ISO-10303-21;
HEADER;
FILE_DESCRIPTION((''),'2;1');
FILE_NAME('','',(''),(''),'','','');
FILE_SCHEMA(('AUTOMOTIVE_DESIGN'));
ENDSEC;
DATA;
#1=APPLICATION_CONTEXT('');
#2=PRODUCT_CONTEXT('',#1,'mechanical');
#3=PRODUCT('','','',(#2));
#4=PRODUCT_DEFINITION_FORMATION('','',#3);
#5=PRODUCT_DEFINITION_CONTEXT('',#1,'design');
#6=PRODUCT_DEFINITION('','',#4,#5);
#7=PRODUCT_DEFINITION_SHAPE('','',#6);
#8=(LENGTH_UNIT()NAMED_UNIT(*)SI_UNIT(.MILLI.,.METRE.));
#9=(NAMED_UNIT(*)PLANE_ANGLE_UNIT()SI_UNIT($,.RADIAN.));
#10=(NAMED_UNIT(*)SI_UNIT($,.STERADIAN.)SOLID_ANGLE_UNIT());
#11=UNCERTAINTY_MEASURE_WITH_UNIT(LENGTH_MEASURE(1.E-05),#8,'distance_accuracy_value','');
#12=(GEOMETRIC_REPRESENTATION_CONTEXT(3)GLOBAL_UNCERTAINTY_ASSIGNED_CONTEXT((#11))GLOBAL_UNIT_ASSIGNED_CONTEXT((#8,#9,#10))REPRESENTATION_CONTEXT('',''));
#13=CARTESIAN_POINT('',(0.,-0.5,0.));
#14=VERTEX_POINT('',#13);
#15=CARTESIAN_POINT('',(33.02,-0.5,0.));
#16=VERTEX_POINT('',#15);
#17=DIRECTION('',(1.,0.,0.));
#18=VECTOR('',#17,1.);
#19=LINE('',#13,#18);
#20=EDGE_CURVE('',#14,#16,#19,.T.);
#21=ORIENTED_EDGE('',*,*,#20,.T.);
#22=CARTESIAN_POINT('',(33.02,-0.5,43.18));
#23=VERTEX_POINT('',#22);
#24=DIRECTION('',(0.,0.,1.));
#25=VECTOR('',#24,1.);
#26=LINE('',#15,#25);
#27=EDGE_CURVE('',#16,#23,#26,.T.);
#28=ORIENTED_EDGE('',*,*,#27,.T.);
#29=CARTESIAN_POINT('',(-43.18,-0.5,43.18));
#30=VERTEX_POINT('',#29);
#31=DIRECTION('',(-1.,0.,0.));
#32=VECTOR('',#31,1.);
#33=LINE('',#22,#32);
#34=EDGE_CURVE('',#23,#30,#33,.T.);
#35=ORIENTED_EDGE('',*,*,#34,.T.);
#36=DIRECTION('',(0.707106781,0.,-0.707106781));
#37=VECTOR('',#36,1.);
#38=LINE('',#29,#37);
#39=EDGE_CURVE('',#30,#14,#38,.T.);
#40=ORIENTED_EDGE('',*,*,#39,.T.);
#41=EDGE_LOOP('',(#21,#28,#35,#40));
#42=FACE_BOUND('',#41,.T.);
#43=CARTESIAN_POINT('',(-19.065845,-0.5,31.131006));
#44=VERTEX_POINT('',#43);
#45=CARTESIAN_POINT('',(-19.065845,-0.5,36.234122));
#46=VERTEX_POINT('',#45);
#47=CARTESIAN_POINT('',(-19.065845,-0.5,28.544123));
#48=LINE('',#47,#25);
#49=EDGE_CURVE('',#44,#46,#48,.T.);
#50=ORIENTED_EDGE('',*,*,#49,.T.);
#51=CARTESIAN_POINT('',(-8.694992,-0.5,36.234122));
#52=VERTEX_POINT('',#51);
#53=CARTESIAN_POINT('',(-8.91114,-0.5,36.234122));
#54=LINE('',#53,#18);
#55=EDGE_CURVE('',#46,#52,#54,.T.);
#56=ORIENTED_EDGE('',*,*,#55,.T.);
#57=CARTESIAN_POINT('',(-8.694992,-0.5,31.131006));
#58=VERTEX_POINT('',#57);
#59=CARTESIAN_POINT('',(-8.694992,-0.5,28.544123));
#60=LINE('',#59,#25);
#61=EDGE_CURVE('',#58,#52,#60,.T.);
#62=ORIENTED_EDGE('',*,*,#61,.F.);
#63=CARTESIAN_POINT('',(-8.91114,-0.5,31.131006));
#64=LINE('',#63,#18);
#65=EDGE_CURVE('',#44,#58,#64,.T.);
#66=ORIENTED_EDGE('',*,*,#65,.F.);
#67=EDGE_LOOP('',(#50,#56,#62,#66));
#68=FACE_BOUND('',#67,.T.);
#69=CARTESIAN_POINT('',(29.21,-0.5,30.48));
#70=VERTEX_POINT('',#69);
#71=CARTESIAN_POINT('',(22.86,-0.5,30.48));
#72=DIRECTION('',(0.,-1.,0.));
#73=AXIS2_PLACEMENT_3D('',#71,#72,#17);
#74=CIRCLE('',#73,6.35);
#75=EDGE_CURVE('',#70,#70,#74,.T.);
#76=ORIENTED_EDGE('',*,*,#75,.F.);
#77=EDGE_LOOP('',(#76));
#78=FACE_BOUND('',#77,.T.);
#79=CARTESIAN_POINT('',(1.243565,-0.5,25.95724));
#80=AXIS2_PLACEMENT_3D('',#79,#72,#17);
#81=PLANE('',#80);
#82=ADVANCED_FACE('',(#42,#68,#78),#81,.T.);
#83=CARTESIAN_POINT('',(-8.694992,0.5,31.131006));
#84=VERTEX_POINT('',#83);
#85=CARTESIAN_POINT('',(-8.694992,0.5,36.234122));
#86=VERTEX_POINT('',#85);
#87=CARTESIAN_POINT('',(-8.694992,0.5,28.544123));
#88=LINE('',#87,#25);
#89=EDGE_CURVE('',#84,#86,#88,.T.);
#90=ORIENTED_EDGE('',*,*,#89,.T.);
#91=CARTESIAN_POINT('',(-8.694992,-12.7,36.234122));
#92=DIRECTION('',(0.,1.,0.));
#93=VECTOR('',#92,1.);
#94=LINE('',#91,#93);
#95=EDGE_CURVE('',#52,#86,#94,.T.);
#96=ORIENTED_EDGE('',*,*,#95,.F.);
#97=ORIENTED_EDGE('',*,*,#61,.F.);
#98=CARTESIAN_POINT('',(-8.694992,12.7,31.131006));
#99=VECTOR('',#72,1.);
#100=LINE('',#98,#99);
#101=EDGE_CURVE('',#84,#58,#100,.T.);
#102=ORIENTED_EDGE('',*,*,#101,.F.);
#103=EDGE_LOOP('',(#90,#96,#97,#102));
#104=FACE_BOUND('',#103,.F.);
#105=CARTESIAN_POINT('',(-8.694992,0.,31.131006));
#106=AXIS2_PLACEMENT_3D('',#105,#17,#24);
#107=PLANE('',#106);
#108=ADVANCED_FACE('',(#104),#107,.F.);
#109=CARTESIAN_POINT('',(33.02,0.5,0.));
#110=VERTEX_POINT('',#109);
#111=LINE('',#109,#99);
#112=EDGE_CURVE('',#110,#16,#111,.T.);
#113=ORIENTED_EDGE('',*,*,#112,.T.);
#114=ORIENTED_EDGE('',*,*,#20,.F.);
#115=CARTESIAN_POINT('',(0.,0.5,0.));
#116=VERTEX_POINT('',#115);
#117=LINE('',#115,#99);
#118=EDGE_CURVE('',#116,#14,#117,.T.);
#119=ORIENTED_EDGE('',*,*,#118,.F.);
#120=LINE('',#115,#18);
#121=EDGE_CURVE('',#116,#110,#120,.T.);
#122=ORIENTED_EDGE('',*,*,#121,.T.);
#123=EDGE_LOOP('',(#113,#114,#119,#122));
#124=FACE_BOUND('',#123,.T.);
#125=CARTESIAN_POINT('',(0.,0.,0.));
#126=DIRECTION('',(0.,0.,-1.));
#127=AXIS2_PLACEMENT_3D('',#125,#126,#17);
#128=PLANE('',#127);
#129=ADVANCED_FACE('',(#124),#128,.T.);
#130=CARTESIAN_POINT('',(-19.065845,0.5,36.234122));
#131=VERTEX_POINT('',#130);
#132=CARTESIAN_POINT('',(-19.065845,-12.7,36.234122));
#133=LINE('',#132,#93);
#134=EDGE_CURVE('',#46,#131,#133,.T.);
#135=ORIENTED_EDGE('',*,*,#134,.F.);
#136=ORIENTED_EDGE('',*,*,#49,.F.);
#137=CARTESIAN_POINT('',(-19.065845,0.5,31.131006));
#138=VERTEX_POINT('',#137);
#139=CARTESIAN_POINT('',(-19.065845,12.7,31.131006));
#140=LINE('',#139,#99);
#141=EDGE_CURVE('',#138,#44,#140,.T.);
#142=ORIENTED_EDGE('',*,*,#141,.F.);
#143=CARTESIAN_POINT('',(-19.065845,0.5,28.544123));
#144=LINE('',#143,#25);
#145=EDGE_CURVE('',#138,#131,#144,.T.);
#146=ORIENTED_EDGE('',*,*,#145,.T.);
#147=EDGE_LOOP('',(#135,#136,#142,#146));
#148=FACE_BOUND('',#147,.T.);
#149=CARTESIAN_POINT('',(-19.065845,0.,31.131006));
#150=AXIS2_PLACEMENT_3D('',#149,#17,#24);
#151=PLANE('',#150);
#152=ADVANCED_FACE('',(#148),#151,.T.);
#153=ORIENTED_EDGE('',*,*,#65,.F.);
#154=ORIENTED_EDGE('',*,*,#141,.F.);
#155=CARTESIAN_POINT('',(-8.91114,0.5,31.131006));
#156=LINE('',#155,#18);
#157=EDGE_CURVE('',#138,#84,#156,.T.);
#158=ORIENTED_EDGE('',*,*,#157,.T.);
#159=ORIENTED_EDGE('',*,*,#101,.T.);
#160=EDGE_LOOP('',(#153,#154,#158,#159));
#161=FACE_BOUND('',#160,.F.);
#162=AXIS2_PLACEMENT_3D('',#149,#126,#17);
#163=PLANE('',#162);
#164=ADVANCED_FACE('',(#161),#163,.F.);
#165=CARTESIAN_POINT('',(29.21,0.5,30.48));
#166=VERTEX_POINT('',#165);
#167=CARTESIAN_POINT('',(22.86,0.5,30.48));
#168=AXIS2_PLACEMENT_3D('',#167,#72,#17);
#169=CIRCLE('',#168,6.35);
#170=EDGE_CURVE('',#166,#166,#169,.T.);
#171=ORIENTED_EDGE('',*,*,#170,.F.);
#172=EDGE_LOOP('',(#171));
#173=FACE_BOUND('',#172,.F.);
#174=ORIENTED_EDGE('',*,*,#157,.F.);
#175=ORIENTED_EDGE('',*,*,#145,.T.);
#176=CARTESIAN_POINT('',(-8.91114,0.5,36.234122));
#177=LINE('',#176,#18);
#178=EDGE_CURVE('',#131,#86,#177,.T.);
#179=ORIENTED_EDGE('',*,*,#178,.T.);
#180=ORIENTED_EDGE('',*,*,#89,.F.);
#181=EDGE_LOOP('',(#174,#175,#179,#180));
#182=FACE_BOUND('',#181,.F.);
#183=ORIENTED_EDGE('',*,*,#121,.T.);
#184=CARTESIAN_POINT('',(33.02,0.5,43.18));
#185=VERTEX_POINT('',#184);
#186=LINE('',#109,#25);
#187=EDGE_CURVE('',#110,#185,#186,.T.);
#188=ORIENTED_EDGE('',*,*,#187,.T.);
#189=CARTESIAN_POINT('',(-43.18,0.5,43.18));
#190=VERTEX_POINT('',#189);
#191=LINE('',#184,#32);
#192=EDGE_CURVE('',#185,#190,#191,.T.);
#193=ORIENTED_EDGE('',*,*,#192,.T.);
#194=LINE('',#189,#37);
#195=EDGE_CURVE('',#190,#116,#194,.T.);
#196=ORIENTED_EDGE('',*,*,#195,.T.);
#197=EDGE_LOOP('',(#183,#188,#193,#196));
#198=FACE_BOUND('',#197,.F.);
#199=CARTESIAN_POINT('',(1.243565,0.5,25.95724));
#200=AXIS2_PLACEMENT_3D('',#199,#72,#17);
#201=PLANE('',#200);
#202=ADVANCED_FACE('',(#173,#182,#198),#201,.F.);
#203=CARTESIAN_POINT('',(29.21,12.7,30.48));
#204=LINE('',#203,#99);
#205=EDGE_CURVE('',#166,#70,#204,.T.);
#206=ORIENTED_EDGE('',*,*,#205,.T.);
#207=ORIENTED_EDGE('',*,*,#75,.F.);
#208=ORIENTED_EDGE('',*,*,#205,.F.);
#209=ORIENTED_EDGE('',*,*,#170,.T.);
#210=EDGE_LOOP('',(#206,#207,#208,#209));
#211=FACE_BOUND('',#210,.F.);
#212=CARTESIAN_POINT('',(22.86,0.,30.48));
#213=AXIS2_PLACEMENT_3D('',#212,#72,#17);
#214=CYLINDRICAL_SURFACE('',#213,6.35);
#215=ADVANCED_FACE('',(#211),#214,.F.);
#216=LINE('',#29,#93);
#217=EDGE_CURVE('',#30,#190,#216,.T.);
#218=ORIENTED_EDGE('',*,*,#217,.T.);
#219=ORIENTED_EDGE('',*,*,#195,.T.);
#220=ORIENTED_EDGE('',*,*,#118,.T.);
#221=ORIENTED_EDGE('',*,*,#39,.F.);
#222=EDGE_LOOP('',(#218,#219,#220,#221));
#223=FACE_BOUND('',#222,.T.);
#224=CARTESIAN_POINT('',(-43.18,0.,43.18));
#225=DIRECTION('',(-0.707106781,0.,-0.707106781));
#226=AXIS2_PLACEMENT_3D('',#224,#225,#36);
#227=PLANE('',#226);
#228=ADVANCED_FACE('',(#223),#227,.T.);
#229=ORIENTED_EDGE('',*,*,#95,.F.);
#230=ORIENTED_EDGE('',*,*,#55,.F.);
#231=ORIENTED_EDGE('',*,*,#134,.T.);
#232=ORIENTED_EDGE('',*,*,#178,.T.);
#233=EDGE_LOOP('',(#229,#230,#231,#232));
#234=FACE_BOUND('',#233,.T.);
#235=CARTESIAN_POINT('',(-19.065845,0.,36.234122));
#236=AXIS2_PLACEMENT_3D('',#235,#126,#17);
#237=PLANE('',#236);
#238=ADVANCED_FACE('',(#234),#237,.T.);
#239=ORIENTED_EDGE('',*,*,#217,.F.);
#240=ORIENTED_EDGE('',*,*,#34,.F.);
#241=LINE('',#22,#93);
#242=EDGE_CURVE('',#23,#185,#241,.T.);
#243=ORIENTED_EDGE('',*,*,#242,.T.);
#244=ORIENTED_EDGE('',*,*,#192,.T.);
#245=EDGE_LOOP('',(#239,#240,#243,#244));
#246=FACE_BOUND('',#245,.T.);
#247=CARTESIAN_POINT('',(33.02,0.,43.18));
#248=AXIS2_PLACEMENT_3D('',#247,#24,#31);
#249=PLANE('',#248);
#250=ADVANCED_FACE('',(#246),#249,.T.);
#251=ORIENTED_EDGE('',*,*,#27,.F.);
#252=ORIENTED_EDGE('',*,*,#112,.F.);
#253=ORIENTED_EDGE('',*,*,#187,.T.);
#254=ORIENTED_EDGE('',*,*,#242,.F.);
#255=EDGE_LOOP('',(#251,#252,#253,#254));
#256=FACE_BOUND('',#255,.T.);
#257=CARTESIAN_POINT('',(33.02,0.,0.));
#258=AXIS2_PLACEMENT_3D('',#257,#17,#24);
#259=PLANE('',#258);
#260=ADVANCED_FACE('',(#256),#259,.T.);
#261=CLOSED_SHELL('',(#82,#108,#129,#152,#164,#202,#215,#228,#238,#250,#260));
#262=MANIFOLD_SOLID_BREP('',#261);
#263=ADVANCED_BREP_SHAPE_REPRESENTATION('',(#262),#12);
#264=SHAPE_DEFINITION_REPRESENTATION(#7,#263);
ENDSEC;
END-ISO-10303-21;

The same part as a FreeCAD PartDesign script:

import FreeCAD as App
import Part
import Sketcher
from FreeCAD import Vector
Q = App.Units.Quantity


def add_polygon(sketch, points):
    """Adds a closed chain of lines whose ends are joined by coincident constraints."""
    first, n = sketch.GeometryCount, len(points)
    for a, b in zip(points, points[1:] + points[:1]):
        sketch.addGeometry(Part.LineSegment(App.Vector(*a, 0), App.Vector(*b, 0)), False)
    for i in range(n):
        sketch.addConstraint(Sketcher.Constraint("Coincident", first + i, 2, first + (i + 1) % n, 1))

doc = App.newDocument("Part")
body = doc.addObject("PartDesign::Body", "Body")

# Sketch on XZ plane
sketch1 = body.newObject("Sketcher::SketchObject", "Sketch")
sketch1.AttachmentSupport = (doc.getObject("XZ_Plane"), [""])
sketch1.MapMode = "FlatFace"
add_polygon(sketch1, [(-43, 43), (0, 0), (33, 0), (33, 43)])  # lines 0-3
sketch1.addConstraint(Sketcher.Constraint("Horizontal", 1))
sketch1.addConstraint(Sketcher.Constraint("Vertical", 2))
sketch1.addConstraint(Sketcher.Constraint("Horizontal", 3))
sketch1.addConstraint(Sketcher.Constraint("Coincident", 0, 2, -1, 1))
sketch1.addConstraint(Sketcher.Constraint("DistanceX", 3, 2, 3, 1, Q("3 in")))
sketch1.addConstraint(Sketcher.Constraint("DistanceX", 1, 1, 1, 2, Q("1.3 in")))
sketch1.addConstraint(Sketcher.Constraint("DistanceY", 2, 1, 2, 2, Q("1.7 in")))
pad1 = body.newObject("PartDesign::Pad", "Pad")
pad1.Profile = sketch1
pad1.Length = 1
pad1.Midplane = True

# Sketch on XZ plane
sketch2 = body.newObject("Sketcher::SketchObject", "Sketch001")
sketch2.AttachmentSupport = (doc.getObject("XZ_Plane"), [""])
sketch2.MapMode = "FlatFace"
sketch2.addGeometry(Part.Circle(Vector(23, 30, 0), Vector(0, 0, 1), 6), False)
sketch2.addConstraint(Sketcher.Constraint("Diameter", 0, Q("0.5 in")))
sketch2.addConstraint(Sketcher.Constraint("DistanceX", -1, 1, 0, 3, Q("0.9 in")))
sketch2.addConstraint(Sketcher.Constraint("DistanceY", -1, 1, 0, 3, Q("1.2 in")))
pocket1 = body.newObject("PartDesign::Pocket", "Pocket")
pocket1.Profile = sketch2
pocket1.Length = Q("1 in")
pocket1.Midplane = True

# Sketch on XZ plane
sketch3 = body.newObject("Sketcher::SketchObject", "Sketch002")
sketch3.AttachmentSupport = (doc.getObject("XZ_Plane"), [""])
sketch3.MapMode = "FlatFace"
add_polygon(sketch3, [(-19, 36), (-19, 31), (-9, 31), (-9, 36)])  # lines 0-3
sketch3.addConstraint(Sketcher.Constraint("Vertical", 0))
sketch3.addConstraint(Sketcher.Constraint("Horizontal", 1))
sketch3.addConstraint(Sketcher.Constraint("Vertical", 2))
sketch3.addConstraint(Sketcher.Constraint("Horizontal", 3))
sketch3.addConstraint(Sketcher.Constraint("DistanceX", 1, 1, 1, 2, 10.370853))
sketch3.addConstraint(Sketcher.Constraint("DistanceY", 0, 2, 0, 1, 5.103117))
sketch3.addConstraint(Sketcher.Constraint("DistanceX", 1, 2, -1, 1, 8.694992))
sketch3.addConstraint(Sketcher.Constraint("DistanceY", -1, 1, 0, 2, 31.131006))
pocket2 = body.newObject("PartDesign::Pocket", "Pocket001")
pocket2.Profile = sketch3
pocket2.Length = Q("1 in")
pocket2.Midplane = True

doc.recompute()
